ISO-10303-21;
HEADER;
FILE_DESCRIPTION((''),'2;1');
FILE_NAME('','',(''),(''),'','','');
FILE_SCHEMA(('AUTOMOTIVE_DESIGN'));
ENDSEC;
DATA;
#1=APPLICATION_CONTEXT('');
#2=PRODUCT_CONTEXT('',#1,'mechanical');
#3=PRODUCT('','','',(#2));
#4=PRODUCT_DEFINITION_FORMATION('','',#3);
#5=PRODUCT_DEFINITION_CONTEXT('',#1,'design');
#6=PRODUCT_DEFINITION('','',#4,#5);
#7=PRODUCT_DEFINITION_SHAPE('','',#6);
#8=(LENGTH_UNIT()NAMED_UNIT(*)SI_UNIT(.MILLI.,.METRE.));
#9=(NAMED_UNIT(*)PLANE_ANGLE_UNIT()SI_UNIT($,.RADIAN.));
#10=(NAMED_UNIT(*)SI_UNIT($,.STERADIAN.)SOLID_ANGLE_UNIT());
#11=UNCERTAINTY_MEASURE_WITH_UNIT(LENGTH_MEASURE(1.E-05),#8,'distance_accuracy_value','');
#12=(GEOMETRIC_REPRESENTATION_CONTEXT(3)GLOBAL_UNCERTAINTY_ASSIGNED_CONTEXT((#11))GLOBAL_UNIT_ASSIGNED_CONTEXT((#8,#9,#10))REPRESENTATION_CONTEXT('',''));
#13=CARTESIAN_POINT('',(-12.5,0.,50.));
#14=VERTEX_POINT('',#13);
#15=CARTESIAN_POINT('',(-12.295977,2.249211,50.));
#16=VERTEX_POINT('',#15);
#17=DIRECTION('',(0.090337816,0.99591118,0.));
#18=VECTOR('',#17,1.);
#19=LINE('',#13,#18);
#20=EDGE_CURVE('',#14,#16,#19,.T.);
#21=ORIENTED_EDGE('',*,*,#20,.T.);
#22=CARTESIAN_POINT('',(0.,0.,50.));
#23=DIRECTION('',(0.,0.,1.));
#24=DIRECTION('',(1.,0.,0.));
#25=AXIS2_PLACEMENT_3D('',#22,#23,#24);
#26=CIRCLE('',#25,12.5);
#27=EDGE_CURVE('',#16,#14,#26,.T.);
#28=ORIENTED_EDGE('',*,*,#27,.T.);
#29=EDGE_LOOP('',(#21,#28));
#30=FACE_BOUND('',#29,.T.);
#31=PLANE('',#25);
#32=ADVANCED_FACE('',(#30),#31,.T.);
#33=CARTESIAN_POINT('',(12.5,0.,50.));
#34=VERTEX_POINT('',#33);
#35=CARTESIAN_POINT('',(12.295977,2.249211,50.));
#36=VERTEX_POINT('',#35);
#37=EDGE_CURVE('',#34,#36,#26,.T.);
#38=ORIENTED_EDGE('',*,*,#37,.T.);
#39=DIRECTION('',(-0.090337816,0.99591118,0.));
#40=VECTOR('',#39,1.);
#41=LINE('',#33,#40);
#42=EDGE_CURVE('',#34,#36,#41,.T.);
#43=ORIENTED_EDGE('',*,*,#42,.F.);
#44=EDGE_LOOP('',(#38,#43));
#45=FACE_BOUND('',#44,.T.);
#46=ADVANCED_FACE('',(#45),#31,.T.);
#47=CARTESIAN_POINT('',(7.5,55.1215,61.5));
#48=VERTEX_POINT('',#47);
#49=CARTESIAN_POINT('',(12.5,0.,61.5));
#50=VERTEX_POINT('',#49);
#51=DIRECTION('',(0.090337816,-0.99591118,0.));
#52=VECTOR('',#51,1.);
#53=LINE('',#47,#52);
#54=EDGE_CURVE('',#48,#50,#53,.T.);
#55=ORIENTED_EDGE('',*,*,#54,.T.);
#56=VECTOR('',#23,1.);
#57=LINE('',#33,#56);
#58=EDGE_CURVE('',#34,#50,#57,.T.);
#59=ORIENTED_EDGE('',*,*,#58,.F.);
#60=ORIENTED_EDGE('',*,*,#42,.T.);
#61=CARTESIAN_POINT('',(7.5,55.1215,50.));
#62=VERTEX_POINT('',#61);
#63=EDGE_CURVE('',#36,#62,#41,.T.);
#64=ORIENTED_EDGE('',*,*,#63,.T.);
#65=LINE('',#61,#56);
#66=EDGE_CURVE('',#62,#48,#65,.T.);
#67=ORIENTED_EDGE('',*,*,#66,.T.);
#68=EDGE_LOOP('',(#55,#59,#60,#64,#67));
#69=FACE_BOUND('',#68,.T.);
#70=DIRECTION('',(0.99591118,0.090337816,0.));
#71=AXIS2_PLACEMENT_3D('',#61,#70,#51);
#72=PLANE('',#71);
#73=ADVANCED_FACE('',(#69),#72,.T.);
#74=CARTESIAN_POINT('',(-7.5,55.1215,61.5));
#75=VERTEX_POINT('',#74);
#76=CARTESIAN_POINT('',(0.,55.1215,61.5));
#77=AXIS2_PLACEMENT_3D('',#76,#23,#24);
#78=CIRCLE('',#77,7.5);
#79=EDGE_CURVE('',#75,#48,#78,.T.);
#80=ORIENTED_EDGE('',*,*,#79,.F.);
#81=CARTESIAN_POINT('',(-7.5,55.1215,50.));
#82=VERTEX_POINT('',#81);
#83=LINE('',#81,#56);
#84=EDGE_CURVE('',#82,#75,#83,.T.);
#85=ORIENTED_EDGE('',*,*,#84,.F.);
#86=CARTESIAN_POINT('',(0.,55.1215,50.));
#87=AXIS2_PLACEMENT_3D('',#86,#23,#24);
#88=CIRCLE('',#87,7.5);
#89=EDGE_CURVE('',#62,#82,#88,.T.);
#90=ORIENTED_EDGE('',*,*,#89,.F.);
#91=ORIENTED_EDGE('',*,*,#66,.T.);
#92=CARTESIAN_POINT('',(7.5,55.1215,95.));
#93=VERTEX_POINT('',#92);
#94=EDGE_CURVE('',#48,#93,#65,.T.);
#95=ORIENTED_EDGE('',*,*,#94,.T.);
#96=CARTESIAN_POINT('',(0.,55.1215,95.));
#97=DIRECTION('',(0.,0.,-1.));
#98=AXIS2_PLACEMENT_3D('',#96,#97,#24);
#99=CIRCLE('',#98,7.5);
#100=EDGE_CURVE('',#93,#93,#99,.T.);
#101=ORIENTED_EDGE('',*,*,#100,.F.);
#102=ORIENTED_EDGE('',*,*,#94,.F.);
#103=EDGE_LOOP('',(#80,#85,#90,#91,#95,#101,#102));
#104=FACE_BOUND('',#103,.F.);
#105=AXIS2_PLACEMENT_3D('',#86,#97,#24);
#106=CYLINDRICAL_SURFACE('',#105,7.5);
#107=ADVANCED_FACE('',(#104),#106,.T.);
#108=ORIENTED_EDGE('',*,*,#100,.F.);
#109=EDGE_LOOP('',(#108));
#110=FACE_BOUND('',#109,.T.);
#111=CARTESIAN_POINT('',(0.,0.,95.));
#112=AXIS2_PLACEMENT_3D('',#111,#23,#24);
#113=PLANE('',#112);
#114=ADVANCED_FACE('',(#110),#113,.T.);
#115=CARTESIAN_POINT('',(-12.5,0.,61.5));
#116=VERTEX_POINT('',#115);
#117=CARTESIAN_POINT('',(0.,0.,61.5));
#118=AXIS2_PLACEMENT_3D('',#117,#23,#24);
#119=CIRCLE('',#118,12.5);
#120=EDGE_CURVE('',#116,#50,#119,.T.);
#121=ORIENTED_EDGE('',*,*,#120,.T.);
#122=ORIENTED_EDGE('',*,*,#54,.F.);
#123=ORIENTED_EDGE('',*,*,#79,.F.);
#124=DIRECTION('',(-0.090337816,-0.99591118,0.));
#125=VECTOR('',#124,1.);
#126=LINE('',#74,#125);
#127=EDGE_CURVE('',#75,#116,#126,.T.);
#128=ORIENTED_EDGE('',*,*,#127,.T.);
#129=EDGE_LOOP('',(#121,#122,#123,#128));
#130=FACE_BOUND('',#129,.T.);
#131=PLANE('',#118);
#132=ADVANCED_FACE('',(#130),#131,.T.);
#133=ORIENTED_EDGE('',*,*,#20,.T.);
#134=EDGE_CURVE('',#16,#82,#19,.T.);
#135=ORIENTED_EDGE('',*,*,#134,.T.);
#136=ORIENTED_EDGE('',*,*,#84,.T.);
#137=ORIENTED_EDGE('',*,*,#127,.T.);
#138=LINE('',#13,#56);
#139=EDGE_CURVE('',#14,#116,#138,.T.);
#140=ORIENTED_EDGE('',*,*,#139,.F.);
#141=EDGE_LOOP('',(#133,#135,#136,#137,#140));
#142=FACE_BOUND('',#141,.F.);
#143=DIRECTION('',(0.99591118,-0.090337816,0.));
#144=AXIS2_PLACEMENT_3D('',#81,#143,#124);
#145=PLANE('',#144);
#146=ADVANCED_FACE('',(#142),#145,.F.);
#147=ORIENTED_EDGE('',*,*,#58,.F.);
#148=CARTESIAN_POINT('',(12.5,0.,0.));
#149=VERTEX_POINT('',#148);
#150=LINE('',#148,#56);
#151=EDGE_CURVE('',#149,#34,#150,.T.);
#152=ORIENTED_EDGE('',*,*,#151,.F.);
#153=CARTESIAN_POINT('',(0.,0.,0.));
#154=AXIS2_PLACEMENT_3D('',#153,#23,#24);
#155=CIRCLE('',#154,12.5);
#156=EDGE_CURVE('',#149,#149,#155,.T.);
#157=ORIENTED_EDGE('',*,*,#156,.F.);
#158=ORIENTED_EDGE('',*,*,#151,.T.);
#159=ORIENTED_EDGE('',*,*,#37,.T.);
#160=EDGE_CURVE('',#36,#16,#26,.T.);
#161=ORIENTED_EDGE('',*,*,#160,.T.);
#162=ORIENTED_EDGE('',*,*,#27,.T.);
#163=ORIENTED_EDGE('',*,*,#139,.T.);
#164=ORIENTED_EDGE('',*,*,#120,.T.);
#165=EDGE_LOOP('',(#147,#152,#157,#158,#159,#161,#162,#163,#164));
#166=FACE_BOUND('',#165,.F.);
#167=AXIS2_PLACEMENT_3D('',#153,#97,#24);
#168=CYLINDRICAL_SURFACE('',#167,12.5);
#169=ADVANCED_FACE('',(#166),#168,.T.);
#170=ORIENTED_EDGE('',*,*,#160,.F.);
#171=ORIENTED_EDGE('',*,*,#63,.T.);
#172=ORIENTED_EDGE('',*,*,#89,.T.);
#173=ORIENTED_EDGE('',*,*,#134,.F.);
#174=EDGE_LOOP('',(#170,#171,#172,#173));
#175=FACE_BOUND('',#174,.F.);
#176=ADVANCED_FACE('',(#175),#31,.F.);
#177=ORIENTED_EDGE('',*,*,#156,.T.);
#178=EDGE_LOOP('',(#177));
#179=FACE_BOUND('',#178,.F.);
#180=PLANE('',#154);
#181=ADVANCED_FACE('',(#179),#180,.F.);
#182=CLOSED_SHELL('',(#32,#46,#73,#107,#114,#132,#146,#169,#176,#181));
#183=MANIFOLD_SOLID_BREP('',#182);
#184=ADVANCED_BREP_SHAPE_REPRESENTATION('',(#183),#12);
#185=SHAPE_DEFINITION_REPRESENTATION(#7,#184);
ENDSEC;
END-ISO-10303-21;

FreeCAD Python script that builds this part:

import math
import FreeCAD as App
import Part
import Sketcher

V = App.Vector

doc = App.newDocument("Part")
body = doc.addObject("PartDesign::Body", "Body")

# Sketch on XY plane
sketch1 = body.newObject("Sketcher::SketchObject", "Sketch")
sketch1.AttachmentSupport = (doc.getObject("XY_Plane"), [""])
sketch1.MapMode = "FlatFace"
sketch1.addGeometry(Part.Circle(V(0, 0, 0), V(0, 0, 1), 12.5), False)
sketch1.addConstraint([
    Sketcher.Constraint("Coincident", 0, 3, -1, 1),
    Sketcher.Constraint("Diameter", 0, 25.0),
])
pad1 = body.newObject("PartDesign::Pad", "Pad")
pad1.Profile = sketch1
pad1.Length = 50

# Sketch on XY plane
sketch2 = body.newObject("Sketcher::SketchObject", "Sketch001")
sketch2.AttachmentSupport = (doc.getObject("XY_Plane"), [""])
sketch2.MapMode = "FlatFace"
sketch2.AttachmentOffset = App.Placement(V(0, 0, 50), App.Rotation())
sketch2.addGeometry([
    Part.ArcOfCircle(Part.Circle(V(0, 55.1215, 0), V(0, 0, 1), 7.5), math.radians(180), math.radians(360)),
    Part.LineSegment(V(-7.5, 55.1215, 0), V(-12.5, 0, 0)),
    Part.ArcOfCircle(Part.Circle(V(0, 0, 0), V(0, 0, 1), 12.5), math.radians(180), math.radians(360)),
    Part.LineSegment(V(12.5, 0, 0), V(7.5, 55.1215, 0)),
], False)
sketch2.addConstraint([
    Sketcher.Constraint("Coincident", 0, 1, 1, 1),
    Sketcher.Constraint("Coincident", 1, 2, 2, 1),
    Sketcher.Constraint("Coincident", 2, 2, 3, 1),
    Sketcher.Constraint("Coincident", 3, 2, 0, 2),
    Sketcher.Constraint("Coincident", 2, 3, -1, 1),
    Sketcher.Constraint("Symmetric", 0, 1, 3, 2, -2),
    Sketcher.Constraint("PointOnObject", 1, 2, -1),
    Sketcher.Constraint("PointOnObject", 2, 2, -1),
    Sketcher.Constraint("Radius", 0, 7.5),
    Sketcher.Constraint("Radius", 2, 12.5),
    Sketcher.Constraint("Distance", 1, 55.3478),
    Sketcher.Constraint("DistanceY", -1, 1, 0, 3, 55.1215),
])
pad2 = body.newObject("PartDesign::Pad", "Pad001")
pad2.Profile = sketch2
pad2.Length = 11.5

# Sketch on XY plane
sketch3 = body.newObject("Sketcher::SketchObject", "Sketch002")
sketch3.AttachmentSupport = (doc.getObject("XY_Plane"), [""])
sketch3.MapMode = "FlatFace"
sketch3.AttachmentOffset = App.Placement(V(0, 0, 50), App.Rotation())
sketch3.addGeometry(Part.Circle(V(0, 55.1215, 0), V(0, 0, 1), 7.5), False)
sketch3.addConstraint([
    Sketcher.Constraint("PointOnObject", 0, 3, -2),
    Sketcher.Constraint("Diameter", 0, 15.0),
    Sketcher.Constraint("DistanceY", -1, 1, 0, 3, 55.1215),
])
pad3 = body.newObject("PartDesign::Pad", "Pad002")
pad3.Profile = sketch3
pad3.Length = 45

doc.recompute()
